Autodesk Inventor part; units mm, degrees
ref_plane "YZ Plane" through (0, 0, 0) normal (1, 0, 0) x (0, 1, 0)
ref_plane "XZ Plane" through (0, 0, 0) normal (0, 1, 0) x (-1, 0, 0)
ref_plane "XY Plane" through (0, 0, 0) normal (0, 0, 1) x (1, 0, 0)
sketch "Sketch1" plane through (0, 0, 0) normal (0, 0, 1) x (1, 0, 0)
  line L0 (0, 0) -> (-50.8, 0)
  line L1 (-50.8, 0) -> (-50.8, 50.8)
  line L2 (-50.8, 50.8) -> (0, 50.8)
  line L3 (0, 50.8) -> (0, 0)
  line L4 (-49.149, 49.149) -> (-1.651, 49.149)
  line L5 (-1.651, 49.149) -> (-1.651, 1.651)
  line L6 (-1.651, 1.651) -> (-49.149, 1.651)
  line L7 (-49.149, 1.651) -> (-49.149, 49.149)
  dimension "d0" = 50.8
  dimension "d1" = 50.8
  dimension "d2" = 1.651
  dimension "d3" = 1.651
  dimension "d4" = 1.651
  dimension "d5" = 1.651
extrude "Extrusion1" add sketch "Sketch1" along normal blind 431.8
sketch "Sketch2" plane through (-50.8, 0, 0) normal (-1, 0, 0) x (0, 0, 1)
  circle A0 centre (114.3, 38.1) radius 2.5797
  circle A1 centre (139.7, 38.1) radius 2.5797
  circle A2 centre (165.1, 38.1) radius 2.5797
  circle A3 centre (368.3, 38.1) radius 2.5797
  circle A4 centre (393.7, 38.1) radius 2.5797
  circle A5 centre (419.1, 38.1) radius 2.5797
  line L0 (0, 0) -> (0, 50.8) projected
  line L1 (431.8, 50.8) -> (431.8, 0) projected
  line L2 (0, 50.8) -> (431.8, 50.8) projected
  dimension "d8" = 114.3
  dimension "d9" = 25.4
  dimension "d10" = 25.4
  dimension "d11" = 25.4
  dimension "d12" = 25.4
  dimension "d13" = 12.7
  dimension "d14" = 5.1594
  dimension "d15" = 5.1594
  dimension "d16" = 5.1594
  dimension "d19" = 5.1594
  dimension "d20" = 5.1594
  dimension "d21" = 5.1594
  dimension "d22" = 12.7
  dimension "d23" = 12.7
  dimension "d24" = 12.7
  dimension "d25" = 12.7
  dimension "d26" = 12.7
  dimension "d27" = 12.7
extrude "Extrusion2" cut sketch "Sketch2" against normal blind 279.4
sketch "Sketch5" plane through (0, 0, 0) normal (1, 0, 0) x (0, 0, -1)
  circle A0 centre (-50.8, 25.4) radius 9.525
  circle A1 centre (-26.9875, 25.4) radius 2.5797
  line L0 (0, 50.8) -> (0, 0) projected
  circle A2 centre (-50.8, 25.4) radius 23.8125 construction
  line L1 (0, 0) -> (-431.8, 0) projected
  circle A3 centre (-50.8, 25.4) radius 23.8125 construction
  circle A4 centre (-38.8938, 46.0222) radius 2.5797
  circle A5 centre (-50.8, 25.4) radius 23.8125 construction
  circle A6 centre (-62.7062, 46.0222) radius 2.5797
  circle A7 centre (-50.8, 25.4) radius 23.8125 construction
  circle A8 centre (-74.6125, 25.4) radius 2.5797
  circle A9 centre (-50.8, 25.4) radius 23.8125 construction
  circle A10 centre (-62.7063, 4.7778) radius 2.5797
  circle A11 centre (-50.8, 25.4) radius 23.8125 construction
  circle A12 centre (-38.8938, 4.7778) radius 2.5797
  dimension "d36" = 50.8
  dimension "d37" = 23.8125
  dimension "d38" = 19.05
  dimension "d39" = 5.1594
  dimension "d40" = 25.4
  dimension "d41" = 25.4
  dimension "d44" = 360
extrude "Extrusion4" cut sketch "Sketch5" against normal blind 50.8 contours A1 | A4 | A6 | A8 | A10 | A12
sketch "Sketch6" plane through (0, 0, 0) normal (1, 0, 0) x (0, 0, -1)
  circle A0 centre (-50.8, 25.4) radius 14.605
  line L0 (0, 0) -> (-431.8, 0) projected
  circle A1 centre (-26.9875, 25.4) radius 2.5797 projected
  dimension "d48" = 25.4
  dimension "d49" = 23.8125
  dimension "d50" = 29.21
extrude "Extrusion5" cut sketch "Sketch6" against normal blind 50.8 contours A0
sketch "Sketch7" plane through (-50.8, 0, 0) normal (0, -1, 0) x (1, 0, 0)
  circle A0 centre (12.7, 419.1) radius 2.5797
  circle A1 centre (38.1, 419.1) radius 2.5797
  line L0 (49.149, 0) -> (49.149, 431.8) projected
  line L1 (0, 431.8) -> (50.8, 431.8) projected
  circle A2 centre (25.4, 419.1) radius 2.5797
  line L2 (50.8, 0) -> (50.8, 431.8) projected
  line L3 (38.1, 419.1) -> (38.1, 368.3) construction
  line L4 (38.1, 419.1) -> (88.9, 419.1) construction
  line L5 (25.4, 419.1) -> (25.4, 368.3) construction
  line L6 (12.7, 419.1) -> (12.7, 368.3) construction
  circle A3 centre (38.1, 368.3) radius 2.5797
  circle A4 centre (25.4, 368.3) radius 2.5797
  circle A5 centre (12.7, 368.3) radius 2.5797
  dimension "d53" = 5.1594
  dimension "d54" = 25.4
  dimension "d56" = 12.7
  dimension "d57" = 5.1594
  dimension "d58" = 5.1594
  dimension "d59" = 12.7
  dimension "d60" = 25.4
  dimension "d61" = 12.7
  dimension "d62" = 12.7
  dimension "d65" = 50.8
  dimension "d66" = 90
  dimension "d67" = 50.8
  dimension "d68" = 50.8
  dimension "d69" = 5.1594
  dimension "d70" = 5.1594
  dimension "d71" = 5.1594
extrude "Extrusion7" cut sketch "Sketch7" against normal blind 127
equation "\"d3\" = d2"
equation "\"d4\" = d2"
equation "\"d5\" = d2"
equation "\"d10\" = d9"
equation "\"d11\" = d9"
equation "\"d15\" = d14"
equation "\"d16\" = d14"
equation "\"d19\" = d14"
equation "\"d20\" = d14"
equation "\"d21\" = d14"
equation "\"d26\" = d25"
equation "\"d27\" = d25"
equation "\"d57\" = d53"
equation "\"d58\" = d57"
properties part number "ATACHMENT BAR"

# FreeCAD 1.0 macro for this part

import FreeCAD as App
import Part
import Sketcher

V = App.Vector
Q = App.Units.Quantity

doc = App.newDocument("Part")
params = doc.addObject("Spreadsheet::Sheet", "Params")
for row, (alias, value) in enumerate([
    ("sketch1_width", "2 in"),
    ("pad1_length", "17 in"),
    ("sketch2_diameter", "0.203126 in"),
    ("pocket1_length", "11 in"),
    ("sketch3_diameter", "0.203126 in"),
    ("pocket2_length", "2 in"),
    ("sketch4_diameter", "1.15 in"),
    ("pocket3_length", "2 in"),
    ("sketch5_diameter", "0.203126 in"),
    ("pocket4_length", "5 in"),
], start=1):
    params.set(f"A{row}", alias)
    params.set(f"B{row}", "=" + value)
    params.setAlias(f"B{row}", alias)

body = doc.addObject("PartDesign::Body", "Body")

# Sketch on XY plane
sketch1 = body.newObject("Sketcher::SketchObject", "Sketch")
sketch1.AttachmentSupport = (doc.getObject("XY_Plane"), [""])
sketch1.MapMode = "FlatFace"
sketch1.addGeometry(Part.LineSegment(V(-50.8, 0, 0), V(0, 0, 0)), False)
sketch1.addGeometry(Part.LineSegment(V(0, 0, 0), V(0, 50.8, 0)), False)
sketch1.addGeometry(Part.LineSegment(V(0, 50.8, 0), V(-50.8, 50.8, 0)), False)
sketch1.addGeometry(Part.LineSegment(V(-50.8, 50.8, 0), V(-50.8, 0, 0)), False)
sketch1.addGeometry(Part.LineSegment(V(-49.149, 1.651, 0), V(-49.149, 49.149, 0)), False)
sketch1.addGeometry(Part.LineSegment(V(-49.149, 49.149, 0), V(-1.651, 49.149, 0)), False)
sketch1.addGeometry(Part.LineSegment(V(-1.651, 49.149, 0), V(-1.651, 1.651, 0)), False)
sketch1.addGeometry(Part.LineSegment(V(-1.651, 1.651, 0), V(-49.149, 1.651, 0)), False)
sketch1.addConstraint(Sketcher.Constraint("Coincident", 0, 2, 1, 1))
sketch1.addConstraint(Sketcher.Constraint("Coincident", 1, 2, 2, 1))
sketch1.addConstraint(Sketcher.Constraint("Coincident", 2, 2, 3, 1))
sketch1.addConstraint(Sketcher.Constraint("Coincident", 3, 2, 0, 1))
sketch1.addConstraint(Sketcher.Constraint("Coincident", 4, 2, 5, 1))
sketch1.addConstraint(Sketcher.Constraint("Coincident", 5, 2, 6, 1))
sketch1.addConstraint(Sketcher.Constraint("Coincident", 6, 2, 7, 1))
sketch1.addConstraint(Sketcher.Constraint("Coincident", 7, 2, 4, 1))
sketch1.addConstraint(Sketcher.Constraint("Horizontal", 0))
sketch1.addConstraint(Sketcher.Constraint("Vertical", 1))
sketch1.addConstraint(Sketcher.Constraint("Horizontal", 2))
sketch1.addConstraint(Sketcher.Constraint("Vertical", 3))
sketch1.addConstraint(Sketcher.Constraint("Vertical", 4))
sketch1.addConstraint(Sketcher.Constraint("Horizontal", 5))
sketch1.addConstraint(Sketcher.Constraint("Vertical", 6))
sketch1.addConstraint(Sketcher.Constraint("Horizontal", 7))
sketch1.addConstraint(Sketcher.Constraint("Coincident", 0, 2, -1, 1))
sketch1.addConstraint(Sketcher.Constraint("Equal", 2, 1))
sketch1.addConstraint(Sketcher.Constraint("Equal", 7, 4))
sketch1.addConstraint(Sketcher.Constraint("DistanceX", 0, 1, 0, 2, Q("2 in")))
sketch1.addConstraint(Sketcher.Constraint("DistanceX", 5, 2, -1, 1, Q("0.065 in")))
sketch1.addConstraint(Sketcher.Constraint("DistanceY", -1, 1, 6, 2, Q("0.065 in")))
sketch1.addConstraint(Sketcher.Constraint("DistanceX", 2, 2, 4, 2, Q("0.065 in")))
sketch1.setExpression("Constraints[19]", "Params.sketch1_width")
pad1 = body.newObject("PartDesign::Pad", "Pad")
pad1.Profile = sketch1
pad1.setExpression("Length", "Params.pad1_length")

# Sketch on YZ plane
sketch2 = body.newObject("Sketcher::SketchObject", "Sketch001")
sketch2.AttachmentSupport = (doc.getObject("YZ_Plane"), [""])
sketch2.MapMode = "FlatFace"
sketch2.AttachmentOffset = App.Placement(V(0, 0, -2 * 25.4), App.Rotation())
sketch2.addGeometry(Part.Circle(V(38.1, 114.3, 0), V(0, 0, 1), 2.5797), False)
sketch2.addGeometry(Part.Circle(V(38.1, 139.7, 0), V(0, 0, 1), 2.5797), False)
sketch2.addGeometry(Part.Circle(V(38.1, 165.1, 0), V(0, 0, 1), 2.5797), False)
sketch2.addGeometry(Part.Circle(V(38.1, 368.3, 0), V(0, 0, 1), 2.5797), False)
sketch2.addGeometry(Part.Circle(V(38.1, 393.7, 0), V(0, 0, 1), 2.5797), False)
sketch2.addGeometry(Part.Circle(V(38.1, 419.1, 0), V(0, 0, 1), 2.5797), False)
sketch2.addConstraint(Sketcher.Constraint("Equal", 0, 1))
sketch2.addConstraint(Sketcher.Constraint("Equal", 1, 2))
sketch2.addConstraint(Sketcher.Constraint("Equal", 2, 3))
sketch2.addConstraint(Sketcher.Constraint("Equal", 3, 4))
sketch2.addConstraint(Sketcher.Constraint("Equal", 4, 5))
sketch2.addConstraint(Sketcher.Constraint("Vertical", 0, 3, 1, 3))
sketch2.addConstraint(Sketcher.Constraint("Vertical", 1, 3, 2, 3))
sketch2.addConstraint(Sketcher.Constraint("Vertical", 2, 3, 3, 3))
sketch2.addConstraint(Sketcher.Constraint("Vertical", 3, 3, 4, 3))
sketch2.addConstraint(Sketcher.Constraint("Vertical", 4, 3, 5, 3))
sketch2.addConstraint(Sketcher.Constraint("Diameter", 0, Q("0.203126 in")))
sketch2.addConstraint(Sketcher.Constraint("DistanceY", 0, 3, 1, 3, Q("1 in")))
sketch2.addConstraint(Sketcher.Constraint("DistanceY", 1, 3, 2, 3, Q("1 in")))
sketch2.addConstraint(Sketcher.Constraint("DistanceY", 3, 3, 4, 3, Q("1 in")))
sketch2.addConstraint(Sketcher.Constraint("DistanceY", 4, 3, 5, 3, Q("1 in")))
sketch2.addConstraint(Sketcher.Constraint("DistanceY", -1, 1, 0, 3, Q("4.5 in")))
sketch2.addConstraint(Sketcher.Constraint("DistanceY", 2, 3, 3, 3, Q("8 in")))
sketch2.addConstraint(Sketcher.Constraint("DistanceX", -1, 1, 0, 3, Q("1.5 in")))
sketch2.setExpression("Constraints[10]", "Params.sketch2_diameter")
pocket1 = body.newObject("PartDesign::Pocket", "Pocket")
pocket1.Profile = sketch2
pocket1.setExpression("Length", "Params.pocket1_length")
pocket1.Reversed = True

# Sketch on YZ plane
sketch3 = body.newObject("Sketcher::SketchObject", "Sketch002")
sketch3.AttachmentSupport = (doc.getObject("YZ_Plane"), [""])
sketch3.MapMode = "FlatFace"
sketch3.addGeometry(Part.Circle(V(25.4, 26.9875, 0), V(0, 0, 1), 2.5797), False)
sketch3.addGeometry(Part.Circle(V(46.0222, 38.8938, 0), V(0, 0, 1), 2.5797), False)
sketch3.addGeometry(Part.Circle(V(46.0222, 62.7062, 0), V(0, 0, 1), 2.5797), False)
sketch3.addGeometry(Part.Circle(V(25.4, 74.6125, 0), V(0, 0, 1), 2.5797), False)
sketch3.addGeometry(Part.Circle(V(4.7778, 62.7063, 0), V(0, 0, 1), 2.5797), False)
sketch3.addGeometry(Part.Circle(V(4.7778, 38.8938, 0), V(0, 0, 1), 2.5797), False)
sketch3.addConstraint(Sketcher.Constraint("Equal", 0, 1))
sketch3.addConstraint(Sketcher.Constraint("Equal", 1, 2))
sketch3.addConstraint(Sketcher.Constraint("Equal", 2, 3))
sketch3.addConstraint(Sketcher.Constraint("Equal", 3, 4))
sketch3.addConstraint(Sketcher.Constraint("Equal", 4, 5))
sketch3.addConstraint(Sketcher.Constraint("Horizontal", 2, 3, 4, 3))
sketch3.addConstraint(Sketcher.Constraint("Horizontal", 1, 3, 5, 3))
sketch3.addConstraint(Sketcher.Constraint("Vertical", 1, 3, 2, 3))
sketch3.addConstraint(Sketcher.Constraint("Vertical", 0, 3, 3, 3))
sketch3.addConstraint(Sketcher.Constraint("Vertical", 4, 3, 5, 3))
sketch3.addConstraint(Sketcher.Constraint("Diameter", 0, Q("0.203126 in")))
sketch3.addConstraint(Sketcher.Constraint("DistanceX", -1, 1, 0, 3, Q("1 in")))
sketch3.addConstraint(Sketcher.Constraint("DistanceY", 1, 3, 2, 3, Q("0.9375 in")))
sketch3.addConstraint(Sketcher.Constraint("DistanceY", -1, 1, 0, 3, Q("1.0625 in")))
sketch3.addConstraint(Sketcher.Constraint("DistanceY", -1, 1, 1, 3, Q("1.531252 in")))
sketch3.addConstraint(Sketcher.Constraint("DistanceY", -1, 1, 3, 3, Q("2.9375 in")))
sketch3.addConstraint(Sketcher.Constraint("DistanceX", -1, 1, 1, 3, Q("1.8119 in")))
sketch3.addConstraint(Sketcher.Constraint("DistanceX", -1, 1, 4, 3, Q("0.1881 in")))
sketch3.setExpression("Constraints[10]", "Params.sketch3_diameter")
pocket2 = body.newObject("PartDesign::Pocket", "Pocket001")
pocket2.Profile = sketch3
pocket2.setExpression("Length", "Params.pocket2_length")

# Sketch on YZ plane
sketch4 = body.newObject("Sketcher::SketchObject", "Sketch003")
sketch4.AttachmentSupport = (doc.getObject("YZ_Plane"), [""])
sketch4.MapMode = "FlatFace"
sketch4.addGeometry(Part.Circle(V(25.4, 50.8, 0), V(0, 0, 1), 14.605), False)
sketch4.addConstraint(Sketcher.Constraint("Diameter", 0, Q("1.15 in")))
sketch4.addConstraint(Sketcher.Constraint("DistanceX", -1, 1, 0, 3, Q("1 in")))
sketch4.addConstraint(Sketcher.Constraint("DistanceY", -1, 1, 0, 3, Q("2 in")))
sketch4.setExpression("Constraints[0]", "Params.sketch4_diameter")
pocket3 = body.newObject("PartDesign::Pocket", "Pocket002")
pocket3.Profile = sketch4
pocket3.setExpression("Length", "Params.pocket3_length")

# Sketch on XZ plane
sketch5 = body.newObject("Sketcher::SketchObject", "Sketch004")
sketch5.AttachmentSupport = (doc.getObject("XZ_Plane"), [""])
sketch5.MapMode = "FlatFace"
sketch5.addGeometry(Part.Circle(V(-38.1, 419.1, 0), V(0, 0, 1), 2.5797), False)
sketch5.addGeometry(Part.Circle(V(-12.7, 419.1, 0), V(0, 0, 1), 2.5797), False)
sketch5.addGeometry(Part.Circle(V(-25.4, 419.1, 0), V(0, 0, 1), 2.5797), False)
sketch5.addGeometry(Part.Circle(V(-12.7, 368.3, 0), V(0, 0, 1), 2.5797), False)
sketch5.addGeometry(Part.Circle(V(-25.4, 368.3, 0), V(0, 0, 1), 2.5797), False)
sketch5.addGeometry(Part.Circle(V(-38.1, 368.3, 0), V(0, 0, 1), 2.5797), False)
sketch5.addConstraint(Sketcher.Constraint("Equal", 0, 1))
sketch5.addConstraint(Sketcher.Constraint("Equal", 1, 2))
sketch5.addConstraint(Sketcher.Constraint("Equal", 2, 3))
sketch5.addConstraint(Sketcher.Constraint("Equal", 3, 4))
sketch5.addConstraint(Sketcher.Constraint("Equal", 4, 5))
sketch5.addConstraint(Sketcher.Constraint("Horizontal", 0, 3, 1, 3))
sketch5.addConstraint(Sketcher.Constraint("Horizontal", 1, 3, 2, 3))
sketch5.addConstraint(Sketcher.Constraint("Horizontal", 3, 3, 4, 3))
sketch5.addConstraint(Sketcher.Constraint("Horizontal", 4, 3, 5, 3))
sketch5.addConstraint(Sketcher.Constraint("Vertical", 1, 3, 3, 3))
sketch5.addConstraint(Sketcher.Constraint("Vertical", 2, 3, 4, 3))
sketch5.addConstraint(Sketcher.Constraint("Vertical", 0, 3, 5, 3))
sketch5.addConstraint(Sketcher.Constraint("Diameter", 0, Q("0.203126 in")))
sketch5.addConstraint(Sketcher.Constraint("DistanceX", 2, 3, -1, 1, Q("1 in")))
sketch5.addConstraint(Sketcher.Constraint("DistanceX", 0, 3, 1, 3, Q("1 in")))
sketch5.addConstraint(Sketcher.Constraint("DistanceY", 3, 3, 1, 3, Q("2 in")))
sketch5.addConstraint(Sketcher.Constraint("DistanceX", 1, 3, -1, 1, Q("0.5 in")))
sketch5.addConstraint(Sketcher.Constraint("DistanceY", -1, 1, 0, 3, Q("16.5 in")))
sketch5.setExpression("Constraints[12]", "Params.sketch5_diameter")
pocket4 = body.newObject("PartDesign::Pocket", "Pocket003")
pocket4.Profile = sketch5
pocket4.setExpression("Length", "Params.pocket4_length")

doc.recompute()
